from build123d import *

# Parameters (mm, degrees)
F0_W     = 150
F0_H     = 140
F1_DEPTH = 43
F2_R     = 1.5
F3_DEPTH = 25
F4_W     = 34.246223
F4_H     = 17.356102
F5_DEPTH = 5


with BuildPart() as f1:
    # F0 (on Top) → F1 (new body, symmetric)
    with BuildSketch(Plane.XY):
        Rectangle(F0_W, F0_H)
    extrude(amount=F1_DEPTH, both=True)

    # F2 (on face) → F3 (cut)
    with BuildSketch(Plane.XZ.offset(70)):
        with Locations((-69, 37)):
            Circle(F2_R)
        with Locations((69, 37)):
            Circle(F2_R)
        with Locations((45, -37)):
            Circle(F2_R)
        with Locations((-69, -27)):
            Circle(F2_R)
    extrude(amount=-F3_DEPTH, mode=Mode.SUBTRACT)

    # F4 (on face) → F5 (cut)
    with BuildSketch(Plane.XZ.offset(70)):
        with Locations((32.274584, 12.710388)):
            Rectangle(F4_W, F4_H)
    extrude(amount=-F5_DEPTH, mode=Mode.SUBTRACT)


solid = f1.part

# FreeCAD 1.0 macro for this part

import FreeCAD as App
import Part
import Sketcher
from FreeCAD import Vector
Q = App.Units.Quantity

doc = App.newDocument("Part")
body = doc.addObject("PartDesign::Body", "Body")

sketch1 = doc.addObject("Sketcher::SketchObject", "Sketch")
body.addObject(sketch1)
sketch1.AttachmentSupport = (doc.XY_Plane, [""])
sketch1.MapMode = "FlatFace"
sketch1.addGeometry(Part.LineSegment(Vector(-75, 70, 0), Vector(-75, -70, 0)), False)
sketch1.addGeometry(Part.LineSegment(Vector(-75, -70, 0), Vector(75, -70, 0)), False)
sketch1.addGeometry(Part.LineSegment(Vector(75, -70, 0), Vector(75, 70, 0)), False)
sketch1.addGeometry(Part.LineSegment(Vector(75, 70, 0), Vector(-75, 70, 0)), False)
sketch1.addConstraint(Sketcher.Constraint("Coincident", 0, 2, 1, 1))
sketch1.addConstraint(Sketcher.Constraint("Coincident", 1, 2, 2, 1))
sketch1.addConstraint(Sketcher.Constraint("Coincident", 2, 2, 3, 1))
sketch1.addConstraint(Sketcher.Constraint("Coincident", 3, 2, 0, 1))
sketch1.addConstraint(Sketcher.Constraint("Vertical", 0))
sketch1.addConstraint(Sketcher.Constraint("Horizontal", 1))
sketch1.addConstraint(Sketcher.Constraint("Vertical", 2))
sketch1.addConstraint(Sketcher.Constraint("Horizontal", 3))
sketch1.addConstraint(Sketcher.Constraint("Symmetric", 0, 2, 2, 2, -1, 1))
sketch1.addConstraint(Sketcher.Constraint("DistanceX", 1, 1, 1, 2, Q("150 mm")))
sketch1.addConstraint(Sketcher.Constraint("DistanceY", 0, 2, 0, 1, Q("140 mm")))
pad1 = doc.addObject("PartDesign::Pad", "Pad")
body.addObject(pad1)
pad1.Profile = sketch1
pad1.Length = 86
pad1.Midplane = True

sketch2 = doc.addObject("Sketcher::SketchObject", "Sketch001")
body.addObject(sketch2)
sketch2.AttachmentSupport = (doc.XZ_Plane, [""])
sketch2.MapMode = "FlatFace"
sketch2.AttachmentOffset = App.Placement(Vector(0, 0, 70), App.Rotation())
sketch2.addGeometry(Part.Circle(Vector(-69, 37, 0), Vector(0, 0, 1), 1.5), False)
sketch2.addGeometry(Part.Circle(Vector(69, 37, 0), Vector(0, 0, 1), 1.5), False)
sketch2.addGeometry(Part.Circle(Vector(45, -37, 0), Vector(0, 0, 1), 1.5), False)
sketch2.addGeometry(Part.Circle(Vector(-69, -27, 0), Vector(0, 0, 1), 1.5), False)
sketch2.addConstraint(Sketcher.Constraint("Equal", 0, 1))
sketch2.addConstraint(Sketcher.Constraint("Equal", 1, 2))
sketch2.addConstraint(Sketcher.Constraint("Equal", 2, 3))
sketch2.addConstraint(Sketcher.Constraint("Symmetric", 0, 3, 1, 3, -2))
sketch2.addConstraint(Sketcher.Constraint("Vertical", 0, 3, 3, 3))
sketch2.addConstraint(Sketcher.Constraint("Diameter", 0, Q("3 mm")))
sketch2.addConstraint(Sketcher.Constraint("DistanceX", 0, 3, -1, 1, Q("69 mm")))
sketch2.addConstraint(Sketcher.Constraint("DistanceY", -1, 1, 0, 3, Q("37 mm")))
sketch2.addConstraint(Sketcher.Constraint("DistanceX", -1, 1, 2, 3, Q("45 mm")))
sketch2.addConstraint(Sketcher.Constraint("DistanceY", 2, 3, -1, 1, Q("37 mm")))
sketch2.addConstraint(Sketcher.Constraint("DistanceY", 3, 3, -1, 1, Q("27 mm")))
pocket1 = doc.addObject("PartDesign::Pocket", "Pocket")
body.addObject(pocket1)
pocket1.Profile = sketch2
pocket1.Length = 25

sketch3 = doc.addObject("Sketcher::SketchObject", "Sketch002")
body.addObject(sketch3)
sketch3.AttachmentSupport = (doc.XZ_Plane, [""])
sketch3.MapMode = "FlatFace"
sketch3.AttachmentOffset = App.Placement(Vector(0, 0, 70), App.Rotation())
sketch3.addGeometry(Part.LineSegment(Vector(15, 21, 0), Vector(15, 4, 0)), False)
sketch3.addGeometry(Part.LineSegment(Vector(15, 4, 0), Vector(49, 4, 0)), False)
sketch3.addGeometry(Part.LineSegment(Vector(49, 4, 0), Vector(49, 21, 0)), False)
sketch3.addGeometry(Part.LineSegment(Vector(49, 21, 0), Vector(15, 21, 0)), False)
sketch3.addConstraint(Sketcher.Constraint("Coincident", 0, 2, 1, 1))
sketch3.addConstraint(Sketcher.Constraint("Coincident", 1, 2, 2, 1))
sketch3.addConstraint(Sketcher.Constraint("Coincident", 2, 2, 3, 1))
sketch3.addConstraint(Sketcher.Constraint("Coincident", 3, 2, 0, 1))
sketch3.addConstraint(Sketcher.Constraint("Vertical", 0))
sketch3.addConstraint(Sketcher.Constraint("Horizontal", 1))
sketch3.addConstraint(Sketcher.Constraint("Vertical", 2))
sketch3.addConstraint(Sketcher.Constraint("Horizontal", 3))
sketch3.addConstraint(Sketcher.Constraint("DistanceY", 0, 2, 0, 1, Q("17.356102 mm")))
sketch3.addConstraint(Sketcher.Constraint("DistanceX", 1, 1, 1, 2, Q("34.246223 mm")))
sketch3.addConstraint(Sketcher.Constraint("DistanceY", -1, 1, 2, 2, Q("21.388439 mm")))
sketch3.addConstraint(Sketcher.Constraint("DistanceX", -1, 1, 0, 2, Q("15.151473 mm")))
pocket2 = doc.addObject("PartDesign::Pocket", "Pocket001")
body.addObject(pocket2)
pocket2.Profile = sketch3
pocket2.Length = 5

doc.recompute()
